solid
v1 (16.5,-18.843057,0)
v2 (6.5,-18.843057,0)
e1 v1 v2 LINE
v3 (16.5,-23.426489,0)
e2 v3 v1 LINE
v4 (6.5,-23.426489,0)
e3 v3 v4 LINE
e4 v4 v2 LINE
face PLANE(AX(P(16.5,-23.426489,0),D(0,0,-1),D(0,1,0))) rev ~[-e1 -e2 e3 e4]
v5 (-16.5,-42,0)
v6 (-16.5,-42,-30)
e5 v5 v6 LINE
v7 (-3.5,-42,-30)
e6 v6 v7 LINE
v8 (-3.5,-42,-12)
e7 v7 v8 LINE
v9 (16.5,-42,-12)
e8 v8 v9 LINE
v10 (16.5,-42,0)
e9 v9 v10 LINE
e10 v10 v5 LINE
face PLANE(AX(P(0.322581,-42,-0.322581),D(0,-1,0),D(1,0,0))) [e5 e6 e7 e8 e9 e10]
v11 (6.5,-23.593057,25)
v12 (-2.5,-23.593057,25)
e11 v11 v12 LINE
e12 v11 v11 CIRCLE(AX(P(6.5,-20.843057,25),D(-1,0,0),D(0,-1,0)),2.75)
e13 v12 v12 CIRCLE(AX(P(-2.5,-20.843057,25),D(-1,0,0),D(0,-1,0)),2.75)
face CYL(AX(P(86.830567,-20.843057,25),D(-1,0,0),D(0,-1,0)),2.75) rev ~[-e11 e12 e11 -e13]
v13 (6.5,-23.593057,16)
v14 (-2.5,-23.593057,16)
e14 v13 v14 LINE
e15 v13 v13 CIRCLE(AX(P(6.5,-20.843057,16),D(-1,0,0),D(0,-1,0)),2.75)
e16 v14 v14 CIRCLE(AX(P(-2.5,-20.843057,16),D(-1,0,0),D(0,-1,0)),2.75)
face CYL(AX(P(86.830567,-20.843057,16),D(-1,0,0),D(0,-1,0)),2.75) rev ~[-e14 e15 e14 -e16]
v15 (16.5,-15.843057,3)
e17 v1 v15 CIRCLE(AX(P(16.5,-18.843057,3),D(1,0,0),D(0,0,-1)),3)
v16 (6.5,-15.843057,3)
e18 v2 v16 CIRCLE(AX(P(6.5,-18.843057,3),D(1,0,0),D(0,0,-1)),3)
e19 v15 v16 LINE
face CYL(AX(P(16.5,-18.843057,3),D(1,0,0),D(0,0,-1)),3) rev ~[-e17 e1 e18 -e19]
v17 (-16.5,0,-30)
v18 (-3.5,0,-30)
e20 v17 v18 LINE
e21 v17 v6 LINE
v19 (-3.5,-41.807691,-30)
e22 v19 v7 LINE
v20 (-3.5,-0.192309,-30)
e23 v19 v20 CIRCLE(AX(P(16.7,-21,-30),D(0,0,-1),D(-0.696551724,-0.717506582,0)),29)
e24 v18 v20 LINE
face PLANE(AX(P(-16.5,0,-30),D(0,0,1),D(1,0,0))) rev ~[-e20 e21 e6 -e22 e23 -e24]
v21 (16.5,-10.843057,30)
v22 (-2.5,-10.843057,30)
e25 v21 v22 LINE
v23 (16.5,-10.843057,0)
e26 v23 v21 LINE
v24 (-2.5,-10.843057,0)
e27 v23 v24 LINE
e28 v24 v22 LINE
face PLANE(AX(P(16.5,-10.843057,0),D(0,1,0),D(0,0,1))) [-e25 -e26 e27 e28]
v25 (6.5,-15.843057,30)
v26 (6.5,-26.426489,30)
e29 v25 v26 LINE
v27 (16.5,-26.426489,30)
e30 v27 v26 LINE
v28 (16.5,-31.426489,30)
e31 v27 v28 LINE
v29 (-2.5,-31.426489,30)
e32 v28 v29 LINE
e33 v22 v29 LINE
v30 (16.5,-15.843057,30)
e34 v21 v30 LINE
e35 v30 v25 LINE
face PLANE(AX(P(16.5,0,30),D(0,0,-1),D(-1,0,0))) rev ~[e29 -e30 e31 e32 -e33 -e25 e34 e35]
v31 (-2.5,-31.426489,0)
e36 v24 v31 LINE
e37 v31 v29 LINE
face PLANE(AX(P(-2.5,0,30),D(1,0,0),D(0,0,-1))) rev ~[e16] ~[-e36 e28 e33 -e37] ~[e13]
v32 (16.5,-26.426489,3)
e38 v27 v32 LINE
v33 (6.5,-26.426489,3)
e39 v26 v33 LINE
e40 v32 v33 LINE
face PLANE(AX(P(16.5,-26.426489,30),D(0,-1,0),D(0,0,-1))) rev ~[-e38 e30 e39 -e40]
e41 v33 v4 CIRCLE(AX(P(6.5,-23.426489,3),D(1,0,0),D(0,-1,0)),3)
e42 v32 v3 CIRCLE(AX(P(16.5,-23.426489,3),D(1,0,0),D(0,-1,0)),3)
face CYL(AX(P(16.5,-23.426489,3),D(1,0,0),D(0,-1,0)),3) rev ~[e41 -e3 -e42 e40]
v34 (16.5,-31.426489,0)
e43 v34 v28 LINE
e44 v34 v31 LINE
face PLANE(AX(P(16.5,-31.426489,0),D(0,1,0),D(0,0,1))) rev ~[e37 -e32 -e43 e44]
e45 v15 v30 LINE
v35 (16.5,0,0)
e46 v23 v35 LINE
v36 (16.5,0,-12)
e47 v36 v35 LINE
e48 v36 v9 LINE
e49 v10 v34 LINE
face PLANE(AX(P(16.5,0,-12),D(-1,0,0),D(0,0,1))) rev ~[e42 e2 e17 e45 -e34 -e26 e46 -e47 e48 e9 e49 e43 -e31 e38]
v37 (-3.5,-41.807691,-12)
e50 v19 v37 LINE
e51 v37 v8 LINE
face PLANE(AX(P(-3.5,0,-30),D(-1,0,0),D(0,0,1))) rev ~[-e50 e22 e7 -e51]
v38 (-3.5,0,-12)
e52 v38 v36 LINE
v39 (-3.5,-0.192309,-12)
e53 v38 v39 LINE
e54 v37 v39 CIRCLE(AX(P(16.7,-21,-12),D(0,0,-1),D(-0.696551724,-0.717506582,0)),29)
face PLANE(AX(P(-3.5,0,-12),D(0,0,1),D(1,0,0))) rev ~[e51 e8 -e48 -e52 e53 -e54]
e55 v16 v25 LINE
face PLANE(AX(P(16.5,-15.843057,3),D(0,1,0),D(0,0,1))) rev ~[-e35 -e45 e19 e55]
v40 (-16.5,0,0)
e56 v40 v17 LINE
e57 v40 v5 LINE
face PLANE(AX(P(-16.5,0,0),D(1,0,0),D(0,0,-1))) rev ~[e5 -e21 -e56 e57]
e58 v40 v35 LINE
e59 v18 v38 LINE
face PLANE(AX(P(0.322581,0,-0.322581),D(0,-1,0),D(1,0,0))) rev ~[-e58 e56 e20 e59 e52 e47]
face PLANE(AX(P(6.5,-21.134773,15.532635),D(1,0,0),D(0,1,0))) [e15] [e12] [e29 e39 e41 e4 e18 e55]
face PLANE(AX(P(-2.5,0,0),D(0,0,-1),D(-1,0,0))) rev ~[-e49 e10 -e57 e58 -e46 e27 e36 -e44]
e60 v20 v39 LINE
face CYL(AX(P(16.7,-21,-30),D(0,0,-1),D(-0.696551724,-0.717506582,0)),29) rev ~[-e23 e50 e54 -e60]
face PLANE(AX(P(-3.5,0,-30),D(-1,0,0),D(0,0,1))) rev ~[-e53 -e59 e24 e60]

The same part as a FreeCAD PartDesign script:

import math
import FreeCAD as App
import Part
import Sketcher

V = App.Vector
Q = App.Units.Quantity

doc = App.newDocument("Part")
body = doc.addObject("PartDesign::Body", "Body")

sketch1 = body.newObject("Sketcher::SketchObject", "Sketch")
sketch1.AttachmentSupport = (doc.getObject("XZ_Plane"), [""])
sketch1.MapMode = "FlatFace"
sketch1.addGeometry([
    Part.LineSegment(V(-16, -30, 0), V(-4, -30, 0)),
    Part.LineSegment(V(-4, -30, 0), V(-4, -12, 0)),
    Part.LineSegment(V(-4, -12, 0), V(16, -12, 0)),
    Part.LineSegment(V(16, -12, 0), V(16, 30, 0)),
    Part.LineSegment(V(16, 30, 0), V(-2, 30, 0)),
    Part.LineSegment(V(-2, 30, 0), V(-2, 0, 0)),
    Part.LineSegment(V(-2, 0, 0), V(-16, 0, 0)),
    Part.LineSegment(V(-16, 0, 0), V(-16, -30, 0)),
], False)
sketch1.addConstraint([
    Sketcher.Constraint("Coincident", 0, 2, 1, 1),
    Sketcher.Constraint("Coincident", 1, 2, 2, 1),
    Sketcher.Constraint("Coincident", 2, 2, 3, 1),
    Sketcher.Constraint("Coincident", 3, 2, 4, 1),
    Sketcher.Constraint("Coincident", 4, 2, 5, 1),
    Sketcher.Constraint("Coincident", 5, 2, 6, 1),
    Sketcher.Constraint("Coincident", 6, 2, 7, 1),
    Sketcher.Constraint("Coincident", 7, 2, 0, 1),
    Sketcher.Constraint("Horizontal", 0),
    Sketcher.Constraint("Vertical", 1),
    Sketcher.Constraint("Horizontal", 2),
    Sketcher.Constraint("Vertical", 3),
    Sketcher.Constraint("Horizontal", 4),
    Sketcher.Constraint("Vertical", 5),
    Sketcher.Constraint("Horizontal", 6),
    Sketcher.Constraint("Vertical", 7),
    Sketcher.Constraint("Symmetric", 3, 2, 7, 2, -1, 1),
    Sketcher.Constraint("PointOnObject", 5, 2, -1),
    Sketcher.Constraint("DistanceX", 0, 1, 0, 2, Q("13 mm")),
    Sketcher.Constraint("DistanceX", 2, 1, 2, 2, Q("20 mm")),
    Sketcher.Constraint("DistanceX", 4, 2, 4, 1, Q("19 mm")),
    Sketcher.Constraint("DistanceY", 1, 1, 1, 2, Q("18 mm")),
    Sketcher.Constraint("DistanceY", 3, 1, 3, 2, Q("42 mm")),
])
pad1 = body.newObject("PartDesign::Pad", "Pad")
pad1.Profile = sketch1
pad1.Length = 42

sketch2 = body.newObject("Sketcher::SketchObject", "Sketch001")
sketch2.AttachmentSupport = (doc.getObject("XY_Plane"), [""])
sketch2.MapMode = "FlatFace"
sketch2.AttachmentOffset = App.Placement(V(0, 0, -30), App.Rotation())
sketch2.addGeometry([
    Part.LineSegment(V(-4, 0, 0), V(-4, -42, 0)),
    Part.ArcOfCircle(Part.Circle(V(17, -21, 0), V(0, 0, 1), 29), math.radians(134), math.radians(226)),
], False)
sketch2.addConstraint([
    Sketcher.Constraint("Coincident", 0, 1, 1, 1),
    Sketcher.Constraint("Coincident", 1, 2, 0, 2),
    Sketcher.Constraint("Vertical", 0),
    Sketcher.Constraint("Radius", 1, Q("29 mm")),
    Sketcher.Constraint("DistanceY", 1, 3, -1, 1, Q("21 mm")),
    Sketcher.Constraint("DistanceX", -1, 1, 1, 3, Q("16.7 mm")),
    Sketcher.Constraint("DistanceX", 0, 1, -1, 1, Q("3.5 mm")),
])
pocket1 = body.newObject("PartDesign::Pocket", "Pocket")
pocket1.Profile = sketch2
pocket1.Length = 18
pocket1.Reversed = True

sketch3 = body.newObject("Sketcher::SketchObject", "Sketch002")
sketch3.AttachmentSupport = (doc.getObject("YZ_Plane"), [""])
sketch3.MapMode = "FlatFace"
sketch3.AttachmentOffset = App.Placement(V(0, 0, 16.5), App.Rotation())
sketch3.addGeometry([
    Part.LineSegment(V(-42, 30, 0), V(-42, 0, 0)),
    Part.LineSegment(V(-42, 0, 0), V(-31, 0, 0)),
    Part.LineSegment(V(-31, 0, 0), V(-31, 30, 0)),
    Part.LineSegment(V(-31, 30, 0), V(-42, 30, 0)),
    Part.LineSegment(V(-11, 30, 0), V(-11, 0, 0)),
    Part.LineSegment(V(-11, 0, 0), V(0, 0, 0)),
    Part.LineSegment(V(0, 0, 0), V(0, 30, 0)),
    Part.LineSegment(V(0, 30, 0), V(-11, 30, 0)),
], False)
sketch3.addConstraint([
    Sketcher.Constraint("Coincident", 0, 2, 1, 1),
    Sketcher.Constraint("Coincident", 1, 2, 2, 1),
    Sketcher.Constraint("Coincident", 2, 2, 3, 1),
    Sketcher.Constraint("Coincident", 3, 2, 0, 1),
    Sketcher.Constraint("Coincident", 4, 2, 5, 1),
    Sketcher.Constraint("Coincident", 5, 2, 6, 1),
    Sketcher.Constraint("Coincident", 6, 2, 7, 1),
    Sketcher.Constraint("Coincident", 7, 2, 4, 1),
    Sketcher.Constraint("Vertical", 0),
    Sketcher.Constraint("Horizontal", 1),
    Sketcher.Constraint("Vertical", 2),
    Sketcher.Constraint("Horizontal", 3),
    Sketcher.Constraint("Vertical", 4),
    Sketcher.Constraint("Horizontal", 5),
    Sketcher.Constraint("Vertical", 6),
    Sketcher.Constraint("Horizontal", 7),
    Sketcher.Constraint("Coincident", 5, 2, -1, 1),
    Sketcher.Constraint("PointOnObject", 0, 2, -1),
    Sketcher.Constraint("Horizontal", 3, 2, 6, 2),
    Sketcher.Constraint("DistanceY", 0, 2, 0, 1, Q("30 mm")),
    Sketcher.Constraint("DistanceX", 0, 2, -1, 1, Q("42 mm")),
    Sketcher.Constraint("DistanceX", 1, 1, 1, 2, Q("10.573511 mm")),
    Sketcher.Constraint("DistanceX", 5, 1, 5, 2, Q("10.843057 mm")),
])
pocket2 = body.newObject("PartDesign::Pocket", "Pocket001")
pocket2.Profile = sketch3
pocket2.Type = "ThroughAll"

sketch4 = body.newObject("Sketcher::SketchObject", "Sketch003")
sketch4.AttachmentSupport = (doc.getObject("YZ_Plane"), [""])
sketch4.MapMode = "FlatFace"
sketch4.AttachmentOffset = App.Placement(V(0, 0, 16.5), App.Rotation())
sketch4.addGeometry([
    Part.LineSegment(V(-15.8, 30, 0), V(-26.4, 30, 0)),
    Part.LineSegment(V(-26.4, 30, 0), V(-26.4, 3, 0)),
    Part.ArcOfCircle(Part.Circle(V(-23.4, 3, 0), V(0, 0, 1), 3), math.radians(180), math.radians(270)),
    Part.LineSegment(V(-23.4, 0, 0), V(-18.8, 0, 0)),
    Part.ArcOfCircle(Part.Circle(V(-18.8, 3, 0), V(0, 0, 1), 3), math.radians(-90), math.radians(0)),
    Part.LineSegment(V(-15.8, 3, 0), V(-15.8, 30, 0)),
], False)
sketch4.addConstraint([
    Sketcher.Constraint("Coincident", 0, 2, 1, 1),
    Sketcher.Constraint("Tangent", 1, 2, 2, 1),
    Sketcher.Constraint("Tangent", 2, 2, 3, 1),
    Sketcher.Constraint("Tangent", 3, 2, 4, 1),
    Sketcher.Constraint("Tangent", 4, 2, 5, 1),
    Sketcher.Constraint("Coincident", 5, 2, 0, 1),
    Sketcher.Constraint("Horizontal", 0),
    Sketcher.Constraint("Vertical", 1),
    Sketcher.Constraint("Horizontal", 3),
    Sketcher.Constraint("Vertical", 5),
    Sketcher.Constraint("Equal", 2, 4),
    Sketcher.Constraint("PointOnObject", 2, 2, -1),
    Sketcher.Constraint("Radius", 2, Q("3 mm")),
    Sketcher.Constraint("DistanceY", 1, 2, 1, 1, Q("27 mm")),
    Sketcher.Constraint("DistanceX", 0, 2, 0, 1, Q("10.583432 mm")),
    Sketcher.Constraint("DistanceX", 2, 3, -1, 1, Q("23.426489 mm")),
])
pocket3 = body.newObject("PartDesign::Pocket", "Pocket002")
pocket3.Profile = sketch4
pocket3.Length = 10

sketch5 = body.newObject("Sketcher::SketchObject", "Sketch004")
sketch5.AttachmentSupport = (doc.getObject("YZ_Plane"), [""])
sketch5.MapMode = "FlatFace"
sketch5.AttachmentOffset = App.Placement(V(0, 0, 6.5), App.Rotation())
sketch5.addGeometry([
    Part.Circle(V(-20.8, 25, 0), V(0, 0, 1), 2.8),
    Part.Circle(V(-20.8, 16, 0), V(0, 0, 1), 2.8),
], False)
sketch5.addConstraint([
    Sketcher.Constraint("Equal", 0, 1),
    Sketcher.Constraint("Vertical", 0, 3, 1, 3),
    Sketcher.Constraint("Diameter", 0, Q("5.5 mm")),
    Sketcher.Constraint("DistanceY", -1, 1, 0, 3, Q("25 mm")),
    Sketcher.Constraint("DistanceY", -1, 1, 1, 3, Q("16 mm")),
    Sketcher.Constraint("DistanceX", 0, 3, -1, 1, Q("20.843057 mm")),
])
doc.recompute()
hole = body.newObject("PartDesign::Hole", "Hole")
hole.Profile = sketch5
hole.ThreadType = "None"
hole.Diameter = 5.5
hole.DepthType = "ThroughAll"

doc.recompute()
